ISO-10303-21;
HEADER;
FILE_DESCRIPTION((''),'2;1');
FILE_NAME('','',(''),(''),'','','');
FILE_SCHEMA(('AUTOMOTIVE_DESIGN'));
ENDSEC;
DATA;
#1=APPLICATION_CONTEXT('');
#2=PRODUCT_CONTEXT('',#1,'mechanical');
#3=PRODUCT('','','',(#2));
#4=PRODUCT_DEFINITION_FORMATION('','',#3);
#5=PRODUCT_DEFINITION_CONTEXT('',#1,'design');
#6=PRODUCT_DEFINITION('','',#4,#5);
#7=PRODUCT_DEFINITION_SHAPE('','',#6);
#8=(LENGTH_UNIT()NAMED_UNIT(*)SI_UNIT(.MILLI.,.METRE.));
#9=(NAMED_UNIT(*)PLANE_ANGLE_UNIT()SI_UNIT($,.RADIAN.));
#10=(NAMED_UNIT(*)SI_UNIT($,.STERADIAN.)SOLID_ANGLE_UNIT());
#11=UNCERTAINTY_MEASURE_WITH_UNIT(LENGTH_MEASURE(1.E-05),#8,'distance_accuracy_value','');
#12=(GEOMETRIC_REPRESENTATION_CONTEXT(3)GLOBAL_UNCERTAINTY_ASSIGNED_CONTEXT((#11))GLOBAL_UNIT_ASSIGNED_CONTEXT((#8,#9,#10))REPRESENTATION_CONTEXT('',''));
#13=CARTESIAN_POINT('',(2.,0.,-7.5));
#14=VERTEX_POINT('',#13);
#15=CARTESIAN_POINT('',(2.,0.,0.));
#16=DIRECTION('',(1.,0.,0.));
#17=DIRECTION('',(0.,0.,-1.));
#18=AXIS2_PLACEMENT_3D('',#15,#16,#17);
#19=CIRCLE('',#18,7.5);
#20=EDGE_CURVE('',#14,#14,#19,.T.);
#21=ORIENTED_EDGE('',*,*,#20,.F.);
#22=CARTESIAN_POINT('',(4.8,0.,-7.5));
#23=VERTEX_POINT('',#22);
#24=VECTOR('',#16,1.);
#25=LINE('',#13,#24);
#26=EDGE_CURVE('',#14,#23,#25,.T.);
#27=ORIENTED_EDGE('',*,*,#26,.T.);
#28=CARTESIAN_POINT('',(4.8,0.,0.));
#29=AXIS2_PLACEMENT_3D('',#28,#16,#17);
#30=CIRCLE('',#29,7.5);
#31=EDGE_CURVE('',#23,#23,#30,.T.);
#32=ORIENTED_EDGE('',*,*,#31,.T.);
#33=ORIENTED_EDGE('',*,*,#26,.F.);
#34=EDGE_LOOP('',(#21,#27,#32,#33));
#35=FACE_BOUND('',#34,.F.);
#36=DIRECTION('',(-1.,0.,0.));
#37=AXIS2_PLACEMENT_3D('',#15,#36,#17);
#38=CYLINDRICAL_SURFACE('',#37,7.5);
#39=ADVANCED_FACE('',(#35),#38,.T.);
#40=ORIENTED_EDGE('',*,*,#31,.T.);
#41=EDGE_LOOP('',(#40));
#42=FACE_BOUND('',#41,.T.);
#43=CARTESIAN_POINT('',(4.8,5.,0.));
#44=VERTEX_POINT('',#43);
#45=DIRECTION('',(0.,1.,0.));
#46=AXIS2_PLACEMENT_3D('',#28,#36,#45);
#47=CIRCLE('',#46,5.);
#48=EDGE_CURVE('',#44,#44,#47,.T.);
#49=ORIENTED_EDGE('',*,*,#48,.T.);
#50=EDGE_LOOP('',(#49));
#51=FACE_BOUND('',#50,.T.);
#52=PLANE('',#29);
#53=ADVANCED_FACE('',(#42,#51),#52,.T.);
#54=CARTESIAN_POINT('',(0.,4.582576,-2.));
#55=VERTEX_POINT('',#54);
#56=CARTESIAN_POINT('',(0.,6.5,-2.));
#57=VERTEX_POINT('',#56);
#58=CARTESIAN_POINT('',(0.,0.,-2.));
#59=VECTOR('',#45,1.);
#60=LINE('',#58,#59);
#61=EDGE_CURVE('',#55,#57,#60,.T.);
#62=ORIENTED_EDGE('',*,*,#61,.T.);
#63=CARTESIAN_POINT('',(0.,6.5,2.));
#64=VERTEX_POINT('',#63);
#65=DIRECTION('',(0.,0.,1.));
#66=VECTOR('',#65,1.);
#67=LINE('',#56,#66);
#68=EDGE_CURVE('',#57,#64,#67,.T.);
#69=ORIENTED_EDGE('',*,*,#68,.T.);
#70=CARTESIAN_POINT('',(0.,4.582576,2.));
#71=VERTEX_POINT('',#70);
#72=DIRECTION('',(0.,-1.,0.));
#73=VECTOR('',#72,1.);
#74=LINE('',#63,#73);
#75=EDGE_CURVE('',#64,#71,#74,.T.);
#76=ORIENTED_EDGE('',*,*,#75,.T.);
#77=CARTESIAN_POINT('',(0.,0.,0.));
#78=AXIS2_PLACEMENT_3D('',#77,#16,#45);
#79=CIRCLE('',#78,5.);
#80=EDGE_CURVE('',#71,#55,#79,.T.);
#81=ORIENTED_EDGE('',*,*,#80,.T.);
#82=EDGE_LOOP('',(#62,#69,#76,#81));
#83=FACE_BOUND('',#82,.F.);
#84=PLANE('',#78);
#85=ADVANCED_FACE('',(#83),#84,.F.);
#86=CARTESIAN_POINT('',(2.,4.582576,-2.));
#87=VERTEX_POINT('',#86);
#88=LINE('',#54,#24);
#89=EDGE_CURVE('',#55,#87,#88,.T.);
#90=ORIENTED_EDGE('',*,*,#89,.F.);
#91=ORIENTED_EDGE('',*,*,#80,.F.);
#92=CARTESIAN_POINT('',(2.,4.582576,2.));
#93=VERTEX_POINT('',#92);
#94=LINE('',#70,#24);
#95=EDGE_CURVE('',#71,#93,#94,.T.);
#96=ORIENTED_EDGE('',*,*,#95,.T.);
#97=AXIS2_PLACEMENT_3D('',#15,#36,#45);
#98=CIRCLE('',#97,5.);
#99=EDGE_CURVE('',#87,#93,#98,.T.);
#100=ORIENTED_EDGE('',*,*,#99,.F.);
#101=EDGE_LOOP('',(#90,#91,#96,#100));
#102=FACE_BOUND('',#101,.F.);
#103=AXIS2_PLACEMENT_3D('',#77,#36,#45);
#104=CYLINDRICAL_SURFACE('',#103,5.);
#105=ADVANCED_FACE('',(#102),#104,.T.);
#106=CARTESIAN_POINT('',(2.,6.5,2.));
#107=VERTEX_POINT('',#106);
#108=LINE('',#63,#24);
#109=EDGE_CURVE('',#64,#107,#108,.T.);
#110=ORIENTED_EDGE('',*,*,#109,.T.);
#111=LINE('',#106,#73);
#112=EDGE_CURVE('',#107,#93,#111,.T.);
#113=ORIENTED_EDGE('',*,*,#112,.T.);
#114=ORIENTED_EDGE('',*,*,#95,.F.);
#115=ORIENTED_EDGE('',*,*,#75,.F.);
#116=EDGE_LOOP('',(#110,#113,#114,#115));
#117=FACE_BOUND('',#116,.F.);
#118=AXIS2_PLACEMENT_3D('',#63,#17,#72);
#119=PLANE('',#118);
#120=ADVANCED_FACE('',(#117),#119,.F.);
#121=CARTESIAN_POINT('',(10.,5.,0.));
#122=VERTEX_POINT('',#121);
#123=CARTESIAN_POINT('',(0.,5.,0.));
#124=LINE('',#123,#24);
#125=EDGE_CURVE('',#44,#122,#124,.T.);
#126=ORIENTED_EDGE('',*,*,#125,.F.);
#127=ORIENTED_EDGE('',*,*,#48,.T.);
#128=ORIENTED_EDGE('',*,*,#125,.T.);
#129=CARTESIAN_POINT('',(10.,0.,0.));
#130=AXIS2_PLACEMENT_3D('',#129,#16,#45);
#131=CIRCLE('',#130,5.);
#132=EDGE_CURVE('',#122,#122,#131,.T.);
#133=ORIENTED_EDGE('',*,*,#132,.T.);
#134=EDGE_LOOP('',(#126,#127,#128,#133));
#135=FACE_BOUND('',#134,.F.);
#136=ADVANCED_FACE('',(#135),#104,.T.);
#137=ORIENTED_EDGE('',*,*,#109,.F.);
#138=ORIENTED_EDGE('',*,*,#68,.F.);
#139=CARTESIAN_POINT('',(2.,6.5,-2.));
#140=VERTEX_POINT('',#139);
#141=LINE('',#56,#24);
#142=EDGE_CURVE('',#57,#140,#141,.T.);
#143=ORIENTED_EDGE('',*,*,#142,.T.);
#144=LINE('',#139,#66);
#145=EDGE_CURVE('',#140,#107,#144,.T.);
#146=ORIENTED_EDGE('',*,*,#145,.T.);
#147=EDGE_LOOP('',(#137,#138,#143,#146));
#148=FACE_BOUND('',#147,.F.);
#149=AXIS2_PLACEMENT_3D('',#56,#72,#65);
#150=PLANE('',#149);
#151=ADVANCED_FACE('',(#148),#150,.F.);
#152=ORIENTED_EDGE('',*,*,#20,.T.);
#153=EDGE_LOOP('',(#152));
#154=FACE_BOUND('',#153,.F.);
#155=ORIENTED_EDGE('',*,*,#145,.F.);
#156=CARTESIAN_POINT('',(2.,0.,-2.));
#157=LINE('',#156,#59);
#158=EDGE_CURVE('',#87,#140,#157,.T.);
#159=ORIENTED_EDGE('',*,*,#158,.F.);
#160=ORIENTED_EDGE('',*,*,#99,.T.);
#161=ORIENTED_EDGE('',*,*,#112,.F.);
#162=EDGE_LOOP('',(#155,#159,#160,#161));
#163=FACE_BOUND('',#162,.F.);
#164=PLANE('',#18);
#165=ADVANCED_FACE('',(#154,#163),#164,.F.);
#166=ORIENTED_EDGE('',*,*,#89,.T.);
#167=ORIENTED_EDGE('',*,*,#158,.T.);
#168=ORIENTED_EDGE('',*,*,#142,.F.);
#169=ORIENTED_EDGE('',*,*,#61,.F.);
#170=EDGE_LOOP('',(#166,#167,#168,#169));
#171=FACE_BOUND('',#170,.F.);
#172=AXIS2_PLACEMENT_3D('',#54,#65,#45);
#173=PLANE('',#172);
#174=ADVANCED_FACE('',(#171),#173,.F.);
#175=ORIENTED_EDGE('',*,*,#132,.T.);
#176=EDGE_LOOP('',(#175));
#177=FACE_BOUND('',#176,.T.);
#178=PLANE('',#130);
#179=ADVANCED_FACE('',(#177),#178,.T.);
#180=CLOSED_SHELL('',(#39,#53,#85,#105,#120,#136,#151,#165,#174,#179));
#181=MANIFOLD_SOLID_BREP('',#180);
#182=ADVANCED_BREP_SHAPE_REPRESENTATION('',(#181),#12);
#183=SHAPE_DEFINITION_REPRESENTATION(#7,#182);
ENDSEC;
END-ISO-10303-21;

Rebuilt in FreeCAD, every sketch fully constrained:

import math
import FreeCAD as App
import Part
import Sketcher
Q = App.Units.Quantity

doc = App.newDocument("Part")
body = doc.addObject("PartDesign::Body", "Body")

sketch1 = body.newObject("Sketcher::SketchObject", "Sketch")
sketch1.AttachmentSupport = (doc.getObject("YZ_Plane"), [""])
sketch1.MapMode = "FlatFace"
sketch1.addGeometry(Part.Circle(App.Vector(0, 0, 0), App.Vector(0, 0, 1), 5), False)
sketch1.addConstraint(Sketcher.Constraint("Coincident", 0, 3, -1, 1))
sketch1.addConstraint(Sketcher.Constraint("Diameter", 0, Q("10 mm")))
pad1 = body.newObject("PartDesign::Pad", "Pad")
pad1.Profile = sketch1
pad1.Length = 10

sketch2 = body.newObject("Sketcher::SketchObject", "Sketch001")
sketch2.AttachmentSupport = (doc.getObject("YZ_Plane"), [""])
sketch2.MapMode = "FlatFace"
sketch2.addGeometry(Part.ArcOfCircle(Part.Circle(App.Vector(0, 0, 0), App.Vector(0, 0, 1), 5), math.radians(-24), math.radians(24)), False)
sketch2.addGeometry(Part.LineSegment(App.Vector(4.6, 2, 0), App.Vector(6.5, 2, 0)), False)
sketch2.addGeometry(Part.LineSegment(App.Vector(6.5, 2, 0), App.Vector(6.5, -2, 0)), False)
sketch2.addGeometry(Part.LineSegment(App.Vector(6.5, -2, 0), App.Vector(4.6, -2, 0)), False)
sketch2.addConstraint(Sketcher.Constraint("Coincident", 0, 2, 1, 1))
sketch2.addConstraint(Sketcher.Constraint("Coincident", 1, 2, 2, 1))
sketch2.addConstraint(Sketcher.Constraint("Coincident", 2, 2, 3, 1))
sketch2.addConstraint(Sketcher.Constraint("Coincident", 3, 2, 0, 1))
sketch2.addConstraint(Sketcher.Constraint("Horizontal", 1))
sketch2.addConstraint(Sketcher.Constraint("Vertical", 2))
sketch2.addConstraint(Sketcher.Constraint("Horizontal", 3))
sketch2.addConstraint(Sketcher.Constraint("Coincident", 0, 3, -1, 1))
sketch2.addConstraint(Sketcher.Constraint("Vertical", 0, 2, 3, 2))
sketch2.addConstraint(Sketcher.Constraint("DistanceY", 2, 2, 2, 1, Q("4 mm")))
sketch2.addConstraint(Sketcher.Constraint("Radius", 0, Q("5 mm")))
sketch2.addConstraint(Sketcher.Constraint("DistanceX", -1, 1, 1, 2, Q("6.5 mm")))
pad2 = body.newObject("PartDesign::Pad", "Pad001")
pad2.Profile = sketch2
pad2.Length = 2

sketch3 = body.newObject("Sketcher::SketchObject", "Sketch002")
sketch3.AttachmentSupport = (doc.getObject("YZ_Plane"), [""])
sketch3.MapMode = "FlatFace"
sketch3.AttachmentOffset = App.Placement(App.Vector(0, 0, 2), App.Rotation())
sketch3.addGeometry(Part.Circle(App.Vector(0, 0, 0), App.Vector(0, 0, 1), 8), False)
sketch3.addConstraint(Sketcher.Constraint("Coincident", 0, 3, -1, 1))
sketch3.addConstraint(Sketcher.Constraint("Diameter", 0, Q("15 mm")))
pad3 = body.newObject("PartDesign::Pad", "Pad002")
pad3.Profile = sketch3
pad3.Length = 2.8

doc.recompute()
